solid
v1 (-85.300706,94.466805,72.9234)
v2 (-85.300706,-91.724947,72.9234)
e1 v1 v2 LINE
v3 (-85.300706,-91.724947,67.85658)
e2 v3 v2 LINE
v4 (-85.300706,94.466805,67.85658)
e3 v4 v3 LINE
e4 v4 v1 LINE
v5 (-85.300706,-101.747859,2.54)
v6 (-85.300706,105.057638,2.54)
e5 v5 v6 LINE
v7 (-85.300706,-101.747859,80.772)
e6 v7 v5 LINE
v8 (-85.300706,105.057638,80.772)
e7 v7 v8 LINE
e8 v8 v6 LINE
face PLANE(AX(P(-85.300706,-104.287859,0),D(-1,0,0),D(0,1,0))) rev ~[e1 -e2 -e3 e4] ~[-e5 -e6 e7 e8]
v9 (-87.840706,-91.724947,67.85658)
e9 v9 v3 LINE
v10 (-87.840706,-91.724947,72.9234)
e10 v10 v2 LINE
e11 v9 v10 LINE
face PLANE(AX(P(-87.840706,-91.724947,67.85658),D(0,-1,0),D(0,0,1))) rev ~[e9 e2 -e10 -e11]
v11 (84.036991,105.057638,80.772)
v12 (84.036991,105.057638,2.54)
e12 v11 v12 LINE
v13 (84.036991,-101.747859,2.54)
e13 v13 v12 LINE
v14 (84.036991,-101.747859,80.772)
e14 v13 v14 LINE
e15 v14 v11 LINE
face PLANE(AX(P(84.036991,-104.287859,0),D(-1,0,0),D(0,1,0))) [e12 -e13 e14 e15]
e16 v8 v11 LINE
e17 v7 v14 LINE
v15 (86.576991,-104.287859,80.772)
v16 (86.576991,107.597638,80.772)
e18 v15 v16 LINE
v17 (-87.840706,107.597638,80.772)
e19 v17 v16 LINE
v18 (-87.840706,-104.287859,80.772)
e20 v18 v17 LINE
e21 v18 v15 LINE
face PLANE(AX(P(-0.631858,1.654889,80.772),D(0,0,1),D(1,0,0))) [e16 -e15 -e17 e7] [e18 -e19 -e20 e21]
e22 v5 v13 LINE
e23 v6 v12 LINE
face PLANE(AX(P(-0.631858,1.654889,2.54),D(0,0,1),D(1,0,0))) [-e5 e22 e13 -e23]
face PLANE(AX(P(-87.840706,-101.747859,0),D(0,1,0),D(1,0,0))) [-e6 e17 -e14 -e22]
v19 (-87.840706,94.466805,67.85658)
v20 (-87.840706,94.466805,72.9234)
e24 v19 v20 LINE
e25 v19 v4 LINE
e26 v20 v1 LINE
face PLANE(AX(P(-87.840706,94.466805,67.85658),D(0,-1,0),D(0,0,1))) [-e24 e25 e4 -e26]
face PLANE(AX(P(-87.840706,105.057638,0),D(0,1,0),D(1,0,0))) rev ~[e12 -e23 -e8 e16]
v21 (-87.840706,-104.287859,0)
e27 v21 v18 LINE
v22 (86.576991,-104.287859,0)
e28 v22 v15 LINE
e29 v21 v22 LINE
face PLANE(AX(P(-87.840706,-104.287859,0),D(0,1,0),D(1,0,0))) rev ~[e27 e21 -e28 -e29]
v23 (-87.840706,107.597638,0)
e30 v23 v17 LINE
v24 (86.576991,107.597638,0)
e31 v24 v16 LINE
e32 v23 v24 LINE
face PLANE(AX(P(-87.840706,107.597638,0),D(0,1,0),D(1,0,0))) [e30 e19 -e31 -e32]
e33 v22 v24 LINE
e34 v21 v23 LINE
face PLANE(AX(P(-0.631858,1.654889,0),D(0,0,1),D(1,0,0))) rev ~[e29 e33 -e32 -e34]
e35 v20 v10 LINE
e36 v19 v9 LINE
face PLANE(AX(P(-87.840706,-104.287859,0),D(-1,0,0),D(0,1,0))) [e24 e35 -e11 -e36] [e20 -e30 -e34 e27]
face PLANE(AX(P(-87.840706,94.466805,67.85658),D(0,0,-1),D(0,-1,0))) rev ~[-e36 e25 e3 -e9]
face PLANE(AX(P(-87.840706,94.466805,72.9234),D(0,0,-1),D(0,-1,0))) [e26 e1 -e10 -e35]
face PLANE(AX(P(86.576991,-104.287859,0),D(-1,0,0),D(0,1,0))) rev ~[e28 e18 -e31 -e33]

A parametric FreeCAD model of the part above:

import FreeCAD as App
import Part
import Sketcher
from FreeCAD import Vector
Q = App.Units.Quantity


def faces_at(feature, points):
    """Names of the faces that lie closest to the given points."""
    faces = feature.Shape.Faces
    near = lambda p: min(range(len(faces)), key=lambda i: faces[i].distToShape(Part.Vertex(*p))[0])
    return sorted({f"Face{near(p) + 1}" for p in points})

doc = App.newDocument("Part")
body = doc.addObject("PartDesign::Body", "Body")

sketch1 = body.newObject("Sketcher::SketchObject", "Sketch")
sketch1.AttachmentSupport = (doc.getObject("XY_Plane"), [""])
sketch1.MapMode = "FlatFace"
sketch1.addGeometry(Part.LineSegment(Vector(-88, 108, 0), Vector(-88, -104, 0)), False)
sketch1.addGeometry(Part.LineSegment(Vector(-88, -104, 0), Vector(87, -104, 0)), False)
sketch1.addGeometry(Part.LineSegment(Vector(87, -104, 0), Vector(87, 108, 0)), False)
sketch1.addGeometry(Part.LineSegment(Vector(87, 108, 0), Vector(-88, 108, 0)), False)
sketch1.addConstraint(Sketcher.Constraint("Coincident", 0, 2, 1, 1))
sketch1.addConstraint(Sketcher.Constraint("Coincident", 1, 2, 2, 1))
sketch1.addConstraint(Sketcher.Constraint("Coincident", 2, 2, 3, 1))
sketch1.addConstraint(Sketcher.Constraint("Coincident", 3, 2, 0, 1))
sketch1.addConstraint(Sketcher.Constraint("Vertical", 0))
sketch1.addConstraint(Sketcher.Constraint("Horizontal", 1))
sketch1.addConstraint(Sketcher.Constraint("Vertical", 2))
sketch1.addConstraint(Sketcher.Constraint("Horizontal", 3))
sketch1.addConstraint(Sketcher.Constraint("DistanceX", 1, 1, 1, 2, 174.417697))
sketch1.addConstraint(Sketcher.Constraint("DistanceY", 0, 2, 0, 1, 211.885497))
sketch1.addConstraint(Sketcher.Constraint("DistanceY", 0, 2, -1, 1, 104.287859))
sketch1.addConstraint(Sketcher.Constraint("DistanceX", -1, 1, 1, 2, 86.576991))
pad1 = body.newObject("PartDesign::Pad", "Pad")
pad1.Profile = sketch1
pad1.Length = Q("3.18 in")
doc.recompute()

thickness = body.newObject("PartDesign::Thickness", "Thickness")
thickness.Base = (pad1, faces_at(pad1, [(-0.632, 1.655, 80.772)]))
thickness.Value = Q("0.1 in")
thickness.Reversed = True
thickness.Join = "Arc"

sketch2 = body.newObject("Sketcher::SketchObject", "Sketch001")
sketch2.AttachmentSupport = (doc.getObject("YZ_Plane"), [""])
sketch2.MapMode = "FlatFace"
sketch2.AttachmentOffset = App.Placement(Vector(0, 0, -87.840706), App.Rotation())
sketch2.addGeometry(Part.LineSegment(Vector(94, 73, 0), Vector(94, 68, 0)), False)
sketch2.addGeometry(Part.LineSegment(Vector(94, 68, 0), Vector(-92, 68, 0)), False)
sketch2.addGeometry(Part.LineSegment(Vector(-92, 68, 0), Vector(-92, 73, 0)), False)
sketch2.addGeometry(Part.LineSegment(Vector(-92, 73, 0), Vector(94, 73, 0)), False)
sketch2.addConstraint(Sketcher.Constraint("Coincident", 0, 2, 1, 1))
sketch2.addConstraint(Sketcher.Constraint("Coincident", 1, 2, 2, 1))
sketch2.addConstraint(Sketcher.Constraint("Coincident", 2, 2, 3, 1))
sketch2.addConstraint(Sketcher.Constraint("Coincident", 3, 2, 0, 1))
sketch2.addConstraint(Sketcher.Constraint("Vertical", 0))
sketch2.addConstraint(Sketcher.Constraint("Horizontal", 1))
sketch2.addConstraint(Sketcher.Constraint("Vertical", 2))
sketch2.addConstraint(Sketcher.Constraint("Horizontal", 3))
sketch2.addConstraint(Sketcher.Constraint("DistanceY", -1, 1, 2, 2, Q("2.871 in")))
sketch2.addConstraint(Sketcher.Constraint("DistanceY", 0, 2, 0, 1, 5.066819))
sketch2.addConstraint(Sketcher.Constraint("DistanceX", 1, 2, 1, 1, 186.191753))
sketch2.addConstraint(Sketcher.Constraint("DistanceX", -1, 1, 0, 2, 94.466805))
pocket1 = body.newObject("PartDesign::Pocket", "Pocket")
pocket1.Profile = sketch2
pocket1.Length = Q("0.47 in")
pocket1.Reversed = True

doc.recompute()
